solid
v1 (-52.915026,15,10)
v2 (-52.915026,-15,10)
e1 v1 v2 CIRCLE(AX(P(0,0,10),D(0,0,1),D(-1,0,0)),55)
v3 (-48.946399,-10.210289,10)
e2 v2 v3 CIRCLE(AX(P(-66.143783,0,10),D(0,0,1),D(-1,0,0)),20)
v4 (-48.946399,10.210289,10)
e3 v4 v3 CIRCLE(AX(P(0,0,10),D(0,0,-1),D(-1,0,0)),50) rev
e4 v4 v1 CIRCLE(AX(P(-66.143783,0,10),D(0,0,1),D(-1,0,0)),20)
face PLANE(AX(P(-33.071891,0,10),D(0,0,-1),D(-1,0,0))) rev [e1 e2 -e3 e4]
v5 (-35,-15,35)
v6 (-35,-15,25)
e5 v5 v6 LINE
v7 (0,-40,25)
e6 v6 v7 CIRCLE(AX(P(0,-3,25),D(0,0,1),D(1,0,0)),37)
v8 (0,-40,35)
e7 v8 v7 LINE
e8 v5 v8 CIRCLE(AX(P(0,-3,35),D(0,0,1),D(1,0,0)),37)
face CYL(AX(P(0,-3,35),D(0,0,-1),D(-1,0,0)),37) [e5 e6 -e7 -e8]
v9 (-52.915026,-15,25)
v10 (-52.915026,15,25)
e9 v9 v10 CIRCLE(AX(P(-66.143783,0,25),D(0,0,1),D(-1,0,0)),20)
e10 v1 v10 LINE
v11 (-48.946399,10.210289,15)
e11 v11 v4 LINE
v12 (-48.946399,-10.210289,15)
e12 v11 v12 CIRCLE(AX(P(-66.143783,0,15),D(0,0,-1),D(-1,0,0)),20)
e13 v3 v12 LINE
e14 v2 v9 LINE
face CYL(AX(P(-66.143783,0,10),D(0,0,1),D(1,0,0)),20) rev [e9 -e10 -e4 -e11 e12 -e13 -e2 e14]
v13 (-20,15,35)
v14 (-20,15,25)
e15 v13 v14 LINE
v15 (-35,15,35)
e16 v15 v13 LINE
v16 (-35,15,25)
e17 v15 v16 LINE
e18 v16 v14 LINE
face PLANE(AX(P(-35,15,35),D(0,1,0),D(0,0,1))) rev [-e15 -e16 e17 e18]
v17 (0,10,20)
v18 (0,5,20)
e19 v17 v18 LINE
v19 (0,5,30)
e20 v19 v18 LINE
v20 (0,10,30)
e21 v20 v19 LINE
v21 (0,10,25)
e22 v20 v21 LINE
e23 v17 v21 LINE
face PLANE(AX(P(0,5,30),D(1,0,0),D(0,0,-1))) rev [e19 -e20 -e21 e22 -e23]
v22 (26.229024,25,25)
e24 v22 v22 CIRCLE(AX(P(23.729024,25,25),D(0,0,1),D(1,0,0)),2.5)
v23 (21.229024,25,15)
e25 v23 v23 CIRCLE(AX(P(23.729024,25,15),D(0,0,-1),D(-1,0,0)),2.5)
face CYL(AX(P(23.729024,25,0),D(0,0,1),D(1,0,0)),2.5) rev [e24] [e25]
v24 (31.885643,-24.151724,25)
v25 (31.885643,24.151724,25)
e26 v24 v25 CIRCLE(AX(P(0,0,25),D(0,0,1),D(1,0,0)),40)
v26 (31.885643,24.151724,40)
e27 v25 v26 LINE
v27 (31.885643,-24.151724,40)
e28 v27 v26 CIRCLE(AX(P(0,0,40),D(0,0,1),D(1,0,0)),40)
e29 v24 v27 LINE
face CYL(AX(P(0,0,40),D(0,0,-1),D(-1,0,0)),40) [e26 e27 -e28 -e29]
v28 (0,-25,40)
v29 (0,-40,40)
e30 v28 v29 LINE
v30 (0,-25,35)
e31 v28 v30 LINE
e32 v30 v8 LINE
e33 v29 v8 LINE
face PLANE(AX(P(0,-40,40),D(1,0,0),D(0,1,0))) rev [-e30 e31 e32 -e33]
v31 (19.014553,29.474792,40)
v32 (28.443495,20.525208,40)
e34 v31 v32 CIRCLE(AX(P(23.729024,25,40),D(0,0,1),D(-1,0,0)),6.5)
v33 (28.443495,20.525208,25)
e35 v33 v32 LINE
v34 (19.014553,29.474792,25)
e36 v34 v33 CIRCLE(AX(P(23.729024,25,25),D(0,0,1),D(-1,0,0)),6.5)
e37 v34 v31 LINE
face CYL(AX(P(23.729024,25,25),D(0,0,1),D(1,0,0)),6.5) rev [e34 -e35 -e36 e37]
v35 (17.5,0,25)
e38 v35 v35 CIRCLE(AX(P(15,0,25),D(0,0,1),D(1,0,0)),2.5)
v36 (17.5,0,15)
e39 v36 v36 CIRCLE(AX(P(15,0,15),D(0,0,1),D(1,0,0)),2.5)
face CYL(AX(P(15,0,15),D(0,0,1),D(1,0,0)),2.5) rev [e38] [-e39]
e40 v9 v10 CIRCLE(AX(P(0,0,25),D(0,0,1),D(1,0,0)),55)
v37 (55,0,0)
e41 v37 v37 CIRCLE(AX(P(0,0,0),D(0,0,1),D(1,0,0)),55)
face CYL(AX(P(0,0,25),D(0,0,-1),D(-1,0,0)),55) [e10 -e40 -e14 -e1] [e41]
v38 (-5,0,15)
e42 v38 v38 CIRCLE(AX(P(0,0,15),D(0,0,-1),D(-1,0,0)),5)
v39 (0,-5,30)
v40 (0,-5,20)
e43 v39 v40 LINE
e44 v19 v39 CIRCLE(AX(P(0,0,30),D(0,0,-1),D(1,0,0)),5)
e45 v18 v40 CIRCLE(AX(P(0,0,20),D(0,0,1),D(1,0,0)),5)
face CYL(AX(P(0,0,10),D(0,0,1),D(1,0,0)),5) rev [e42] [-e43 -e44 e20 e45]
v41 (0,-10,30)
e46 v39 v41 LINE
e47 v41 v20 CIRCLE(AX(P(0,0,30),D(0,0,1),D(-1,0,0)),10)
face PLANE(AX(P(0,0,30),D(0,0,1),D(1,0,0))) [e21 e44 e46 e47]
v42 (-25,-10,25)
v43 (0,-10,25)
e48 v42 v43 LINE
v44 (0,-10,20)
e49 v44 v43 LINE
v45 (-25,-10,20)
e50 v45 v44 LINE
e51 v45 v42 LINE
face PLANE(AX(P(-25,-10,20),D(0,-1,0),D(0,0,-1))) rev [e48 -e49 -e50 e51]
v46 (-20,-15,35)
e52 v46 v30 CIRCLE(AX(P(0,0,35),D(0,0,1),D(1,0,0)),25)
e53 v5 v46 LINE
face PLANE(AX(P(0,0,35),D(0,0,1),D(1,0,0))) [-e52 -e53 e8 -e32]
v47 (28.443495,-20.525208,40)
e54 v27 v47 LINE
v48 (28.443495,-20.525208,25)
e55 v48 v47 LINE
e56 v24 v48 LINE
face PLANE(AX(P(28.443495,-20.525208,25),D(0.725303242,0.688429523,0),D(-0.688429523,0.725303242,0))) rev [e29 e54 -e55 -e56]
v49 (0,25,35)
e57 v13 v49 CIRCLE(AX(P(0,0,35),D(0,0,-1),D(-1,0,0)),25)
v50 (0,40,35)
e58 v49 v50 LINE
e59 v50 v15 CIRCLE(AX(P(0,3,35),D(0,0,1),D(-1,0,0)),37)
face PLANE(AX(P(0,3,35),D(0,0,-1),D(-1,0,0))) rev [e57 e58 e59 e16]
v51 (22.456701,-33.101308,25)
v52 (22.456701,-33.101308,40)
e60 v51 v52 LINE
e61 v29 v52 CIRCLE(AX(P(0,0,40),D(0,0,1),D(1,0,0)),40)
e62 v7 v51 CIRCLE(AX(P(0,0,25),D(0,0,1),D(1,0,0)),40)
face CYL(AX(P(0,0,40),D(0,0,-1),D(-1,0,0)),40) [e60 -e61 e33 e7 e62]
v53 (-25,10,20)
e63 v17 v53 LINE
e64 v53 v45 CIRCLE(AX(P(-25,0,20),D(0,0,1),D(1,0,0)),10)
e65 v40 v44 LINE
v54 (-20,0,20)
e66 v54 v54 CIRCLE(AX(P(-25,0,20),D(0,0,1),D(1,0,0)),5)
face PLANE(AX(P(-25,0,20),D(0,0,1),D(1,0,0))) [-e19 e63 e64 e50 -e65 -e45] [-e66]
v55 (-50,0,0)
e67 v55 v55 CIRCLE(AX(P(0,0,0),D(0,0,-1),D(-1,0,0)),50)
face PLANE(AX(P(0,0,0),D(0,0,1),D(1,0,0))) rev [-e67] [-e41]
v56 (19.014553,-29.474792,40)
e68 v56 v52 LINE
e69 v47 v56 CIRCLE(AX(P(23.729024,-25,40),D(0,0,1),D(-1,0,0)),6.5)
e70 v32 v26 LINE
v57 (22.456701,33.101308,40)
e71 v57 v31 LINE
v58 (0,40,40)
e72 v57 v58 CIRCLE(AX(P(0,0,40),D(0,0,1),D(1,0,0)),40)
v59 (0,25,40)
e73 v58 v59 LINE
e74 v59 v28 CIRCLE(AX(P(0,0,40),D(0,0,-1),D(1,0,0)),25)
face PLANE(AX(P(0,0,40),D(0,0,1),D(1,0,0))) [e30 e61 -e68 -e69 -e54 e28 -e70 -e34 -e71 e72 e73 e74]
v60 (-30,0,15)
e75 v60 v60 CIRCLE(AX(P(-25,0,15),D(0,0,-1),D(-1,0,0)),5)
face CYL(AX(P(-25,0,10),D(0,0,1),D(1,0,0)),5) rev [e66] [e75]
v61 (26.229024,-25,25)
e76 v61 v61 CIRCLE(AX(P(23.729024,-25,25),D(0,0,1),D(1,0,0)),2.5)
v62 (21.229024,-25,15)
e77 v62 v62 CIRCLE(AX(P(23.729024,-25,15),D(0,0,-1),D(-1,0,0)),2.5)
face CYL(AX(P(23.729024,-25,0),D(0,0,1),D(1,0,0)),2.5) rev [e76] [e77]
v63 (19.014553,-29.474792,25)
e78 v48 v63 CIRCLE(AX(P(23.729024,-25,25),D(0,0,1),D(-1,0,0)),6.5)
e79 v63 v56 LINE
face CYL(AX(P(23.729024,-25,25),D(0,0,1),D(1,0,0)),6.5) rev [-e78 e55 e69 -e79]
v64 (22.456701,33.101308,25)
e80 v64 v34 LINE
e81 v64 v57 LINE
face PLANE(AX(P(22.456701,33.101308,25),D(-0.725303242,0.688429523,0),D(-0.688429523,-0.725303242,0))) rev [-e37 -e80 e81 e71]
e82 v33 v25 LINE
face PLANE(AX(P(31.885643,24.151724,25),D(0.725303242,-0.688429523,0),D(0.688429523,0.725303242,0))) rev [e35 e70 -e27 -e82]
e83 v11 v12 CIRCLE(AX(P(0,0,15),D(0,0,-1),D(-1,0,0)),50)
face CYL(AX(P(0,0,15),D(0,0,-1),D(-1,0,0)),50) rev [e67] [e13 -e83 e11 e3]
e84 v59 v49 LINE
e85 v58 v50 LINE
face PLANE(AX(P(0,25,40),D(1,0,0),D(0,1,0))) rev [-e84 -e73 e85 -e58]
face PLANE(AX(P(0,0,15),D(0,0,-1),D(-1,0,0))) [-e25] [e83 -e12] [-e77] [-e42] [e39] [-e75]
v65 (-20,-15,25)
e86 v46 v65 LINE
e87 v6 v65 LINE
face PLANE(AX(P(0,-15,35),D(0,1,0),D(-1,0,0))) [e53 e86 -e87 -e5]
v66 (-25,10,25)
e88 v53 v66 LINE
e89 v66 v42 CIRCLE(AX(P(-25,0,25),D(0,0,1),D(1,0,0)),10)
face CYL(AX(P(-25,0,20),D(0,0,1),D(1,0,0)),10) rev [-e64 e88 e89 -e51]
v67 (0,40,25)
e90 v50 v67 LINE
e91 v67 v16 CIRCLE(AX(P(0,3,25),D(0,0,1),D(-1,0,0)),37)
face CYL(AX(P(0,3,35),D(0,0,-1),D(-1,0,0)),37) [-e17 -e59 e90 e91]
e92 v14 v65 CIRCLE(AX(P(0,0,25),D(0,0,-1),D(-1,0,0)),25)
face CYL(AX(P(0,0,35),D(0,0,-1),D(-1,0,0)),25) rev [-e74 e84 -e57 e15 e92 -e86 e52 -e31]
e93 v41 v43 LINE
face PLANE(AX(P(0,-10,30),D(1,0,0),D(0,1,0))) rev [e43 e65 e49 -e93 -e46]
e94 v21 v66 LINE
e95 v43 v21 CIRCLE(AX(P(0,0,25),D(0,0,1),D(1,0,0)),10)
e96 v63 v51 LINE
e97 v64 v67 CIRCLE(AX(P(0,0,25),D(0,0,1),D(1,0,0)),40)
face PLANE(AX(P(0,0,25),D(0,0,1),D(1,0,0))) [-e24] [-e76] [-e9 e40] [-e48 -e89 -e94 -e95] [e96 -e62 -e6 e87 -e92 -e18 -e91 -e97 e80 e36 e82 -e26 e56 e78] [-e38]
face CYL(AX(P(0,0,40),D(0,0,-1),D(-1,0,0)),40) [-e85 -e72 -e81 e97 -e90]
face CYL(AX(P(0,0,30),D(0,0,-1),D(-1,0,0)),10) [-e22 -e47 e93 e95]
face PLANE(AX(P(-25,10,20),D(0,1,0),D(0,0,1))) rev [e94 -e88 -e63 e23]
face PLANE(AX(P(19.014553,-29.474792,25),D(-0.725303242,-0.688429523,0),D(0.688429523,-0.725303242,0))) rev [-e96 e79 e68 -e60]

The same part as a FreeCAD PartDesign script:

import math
import FreeCAD as App
import Part
import Sketcher

doc = App.newDocument("Part")
body = doc.addObject("PartDesign::Body", "Body")

sketch1 = body.newObject("Sketcher::SketchObject", "Sketch")
sketch1.AttachmentSupport = (doc.getObject("XY_Plane"), [""])
sketch1.MapMode = "FlatFace"
sketch1.addGeometry(Part.Circle(App.Vector(0, 0, 0), App.Vector(0, 0, 1), 55), False)
sketch1.addConstraint(Sketcher.Constraint("Coincident", 0, 3, -1, 1))
sketch1.addConstraint(Sketcher.Constraint("Diameter", 0, 110.0))
pad1 = body.newObject("PartDesign::Pad", "Pad")
pad1.Profile = sketch1
pad1.Length = 25

sketch2 = body.newObject("Sketcher::SketchObject", "Sketch001")
sketch2.AttachmentSupport = (doc.getObject("XY_Plane"), [""])
sketch2.MapMode = "FlatFace"
sketch2.addGeometry(Part.Circle(App.Vector(0, 0, 0), App.Vector(0, 0, 1), 50), False)
sketch2.addConstraint(Sketcher.Constraint("Coincident", 0, 3, -1, 1))
sketch2.addConstraint(Sketcher.Constraint("Diameter", 0, 100.0))
pocket1 = body.newObject("PartDesign::Pocket", "Pocket")
pocket1.Profile = sketch2
pocket1.Length = 15
pocket1.Reversed = True

sketch3 = body.newObject("Sketcher::SketchObject", "Sketch002")
sketch3.AttachmentSupport = (doc.getObject("XY_Plane"), [""])
sketch3.MapMode = "FlatFace"
sketch3.AttachmentOffset = App.Placement(App.Vector(0, 0, 10), App.Rotation())
sketch3.addGeometry(Part.ArcOfCircle(Part.Circle(App.Vector(-66.143783, 0, 0), App.Vector(0, 0, 1), 20), math.radians(-48.590378), math.radians(48.590378)), False)
sketch3.addGeometry(Part.ArcOfCircle(Part.Circle(App.Vector(0, 0, 0), App.Vector(0, 0, 1), 55), math.radians(164.17338), math.radians(195.82662)), False)
sketch3.addConstraint(Sketcher.Constraint("Coincident", 0, 1, 1, 2))
sketch3.addConstraint(Sketcher.Constraint("Coincident", 1, 1, 0, 2))
sketch3.addConstraint(Sketcher.Constraint("Coincident", 1, 3, -1, 1))
sketch3.addConstraint(Sketcher.Constraint("PointOnObject", 0, 3, -1))
sketch3.addConstraint(Sketcher.Constraint("Radius", 0, 20.0))
sketch3.addConstraint(Sketcher.Constraint("Radius", 1, 55.0))
sketch3.addConstraint(Sketcher.Constraint("DistanceY", 0, 1, -1, 1, 15.0))
pocket2 = body.newObject("PartDesign::Pocket", "Pocket001")
pocket2.Profile = sketch3
pocket2.Length = 15
pocket2.Reversed = True

sketch4 = body.newObject("Sketcher::SketchObject", "Sketch003")
sketch4.AttachmentSupport = (doc.getObject("XY_Plane"), [""])
sketch4.MapMode = "FlatFace"
sketch4.AttachmentOffset = App.Placement(App.Vector(0, 0, 25), App.Rotation())
sketch4.addGeometry(Part.LineSegment(App.Vector(-35, 15, 0), App.Vector(-20, 15, 0)), False)
sketch4.addGeometry(Part.ArcOfCircle(Part.Circle(App.Vector(0, 0, 0), App.Vector(0, 0, 1), 25), math.radians(90), math.radians(143.130102)), False)
sketch4.addGeometry(Part.LineSegment(App.Vector(0, 25, 0), App.Vector(0, 40, 0)), False)
sketch4.addGeometry(Part.ArcOfCircle(Part.Circle(App.Vector(0, 3, 0), App.Vector(0, 0, 1), 37), math.radians(90), math.radians(161.075356)), False)
sketch4.addConstraint(Sketcher.Constraint("Coincident", 0, 2, 1, 2))
sketch4.addConstraint(Sketcher.Constraint("Coincident", 1, 1, 2, 1))
sketch4.addConstraint(Sketcher.Constraint("Coincident", 2, 2, 3, 1))
sketch4.addConstraint(Sketcher.Constraint("Coincident", 3, 2, 0, 1))
sketch4.addConstraint(Sketcher.Constraint("Horizontal", 0))
sketch4.addConstraint(Sketcher.Constraint("Vertical", 2))
sketch4.addConstraint(Sketcher.Constraint("Coincident", 1, 3, -1, 1))
sketch4.addConstraint(Sketcher.Constraint("PointOnObject", 3, 3, -2))
sketch4.addConstraint(Sketcher.Constraint("PointOnObject", 1, 1, -2))
sketch4.addConstraint(Sketcher.Constraint("Equal", 0, 2))
sketch4.addConstraint(Sketcher.Constraint("Radius", 1, 25.0))
sketch4.addConstraint(Sketcher.Constraint("Radius", 3, 37.0))
sketch4.addConstraint(Sketcher.Constraint("DistanceX", 0, 1, 0, 2, 15.0))
pad2 = body.newObject("PartDesign::Pad", "Pad001")
pad2.Profile = sketch4
pad2.Length = 10

sketch5 = body.newObject("Sketcher::SketchObject", "Sketch004")
sketch5.AttachmentSupport = (doc.getObject("XY_Plane"), [""])
sketch5.MapMode = "FlatFace"
sketch5.AttachmentOffset = App.Placement(App.Vector(0, 0, 25), App.Rotation())
sketch5.addGeometry(Part.LineSegment(App.Vector(-20, -15, 0), App.Vector(-35, -15, 0)), False)
sketch5.addGeometry(Part.ArcOfCircle(Part.Circle(App.Vector(0, -3, 0), App.Vector(0, 0, 1), 37), math.radians(-161.075356), math.radians(-90)), False)
sketch5.addGeometry(Part.LineSegment(App.Vector(0, -40, 0), App.Vector(0, -25, 0)), False)
sketch5.addGeometry(Part.ArcOfCircle(Part.Circle(App.Vector(0, 0, 0), App.Vector(0, 0, 1), 25), math.radians(-143.130102), math.radians(-90)), False)
sketch5.addConstraint(Sketcher.Constraint("Coincident", 0, 2, 1, 1))
sketch5.addConstraint(Sketcher.Constraint("Coincident", 1, 2, 2, 1))
sketch5.addConstraint(Sketcher.Constraint("Coincident", 2, 2, 3, 2))
sketch5.addConstraint(Sketcher.Constraint("Coincident", 3, 1, 0, 1))
sketch5.addConstraint(Sketcher.Constraint("Horizontal", 0))
sketch5.addConstraint(Sketcher.Constraint("Vertical", 2))
sketch5.addConstraint(Sketcher.Constraint("Coincident", 3, 3, -1, 1))
sketch5.addConstraint(Sketcher.Constraint("PointOnObject", 1, 3, -2))
sketch5.addConstraint(Sketcher.Constraint("PointOnObject", 1, 2, -2))
sketch5.addConstraint(Sketcher.Constraint("Equal", 0, 2))
sketch5.addConstraint(Sketcher.Constraint("Radius", 1, 37.0))
sketch5.addConstraint(Sketcher.Constraint("Radius", 3, 25.0))
sketch5.addConstraint(Sketcher.Constraint("DistanceX", 0, 2, 0, 1, 15.0))
pad3 = body.newObject("PartDesign::Pad", "Pad002")
pad3.Profile = sketch5
pad3.Length = 10

sketch6 = body.newObject("Sketcher::SketchObject", "Sketch005")
sketch6.AttachmentSupport = (doc.getObject("XY_Plane"), [""])
sketch6.MapMode = "FlatFace"
sketch6.AttachmentOffset = App.Placement(App.Vector(0, 0, 25), App.Rotation())
sketch6.addGeometry(Part.LineSegment(App.Vector(0, -25, 0), App.Vector(0, -40, 0)), False)
sketch6.addGeometry(Part.ArcOfCircle(Part.Circle(App.Vector(0, 0, 0), App.Vector(0, 0, 1), 40), math.radians(-90), math.radians(90)), False)
sketch6.addGeometry(Part.LineSegment(App.Vector(0, 40, 0), App.Vector(0, 25, 0)), False)
sketch6.addGeometry(Part.ArcOfCircle(Part.Circle(App.Vector(0, 0, 0), App.Vector(0, 0, 1), 25), math.radians(-90), math.radians(90)), False)
sketch6.addConstraint(Sketcher.Constraint("Coincident", 0, 2, 1, 1))
sketch6.addConstraint(Sketcher.Constraint("Coincident", 1, 2, 2, 1))
sketch6.addConstraint(Sketcher.Constraint("Coincident", 2, 2, 3, 2))
sketch6.addConstraint(Sketcher.Constraint("Coincident", 3, 1, 0, 1))
sketch6.addConstraint(Sketcher.Constraint("Vertical", 0))
sketch6.addConstraint(Sketcher.Constraint("Vertical", 2))
sketch6.addConstraint(Sketcher.Constraint("Coincident", 1, 3, -1, 1))
sketch6.addConstraint(Sketcher.Constraint("Coincident", 3, 3, -1, 1))
sketch6.addConstraint(Sketcher.Constraint("PointOnObject", 0, 2, -2))
sketch6.addConstraint(Sketcher.Constraint("PointOnObject", 1, 2, -2))
sketch6.addConstraint(Sketcher.Constraint("Radius", 1, 40.0))
sketch6.addConstraint(Sketcher.Constraint("Radius", 3, 25.0))
pad4 = body.newObject("PartDesign::Pad", "Pad003")
pad4.Profile = sketch6
pad4.Length = 15

sketch7 = body.newObject("Sketcher::SketchObject", "Sketch006")
sketch7.AttachmentSupport = (doc.getObject("XY_Plane"), [""])
sketch7.MapMode = "FlatFace"
sketch7.AttachmentOffset = App.Placement(App.Vector(0, 0, 25), App.Rotation())
sketch7.addGeometry(Part.LineSegment(App.Vector(19.014553, -29.474792, 0), App.Vector(22.456701, -33.101308, 0)), False)
sketch7.addGeometry(Part.ArcOfCircle(Part.Circle(App.Vector(0, 0, 0), App.Vector(0, 0, 1), 40), math.radians(-55.846115), math.radians(-37.142045)), False)
sketch7.addGeometry(Part.LineSegment(App.Vector(31.885643, -24.151724, 0), App.Vector(28.443495, -20.525208, 0)), False)
sketch7.addGeometry(Part.ArcOfCircle(Part.Circle(App.Vector(23.729024, -25, 0), App.Vector(0, 0, 1), 6.5), math.radians(43.50592), math.radians(223.50592)), False)
sketch7.addGeometry(Part.LineSegment(App.Vector(22.456701, 33.101308, 0), App.Vector(19.014553, 29.474792, 0)), False)
sketch7.addGeometry(Part.ArcOfCircle(Part.Circle(App.Vector(23.729024, 25, 0), App.Vector(0, 0, 1), 6.5), math.radians(136.49408), math.radians(316.49408)), False)
sketch7.addGeometry(Part.LineSegment(App.Vector(28.443495, 20.525208, 0), App.Vector(31.885643, 24.151724, 0)), False)
sketch7.addGeometry(Part.ArcOfCircle(Part.Circle(App.Vector(0, 0, 0), App.Vector(0, 0, 1), 40), math.radians(37.142045), math.radians(55.846115)), False)
sketch7.addConstraint(Sketcher.Constraint("Coincident", 0, 2, 1, 1))
sketch7.addConstraint(Sketcher.Constraint("Coincident", 1, 2, 2, 1))
sketch7.addConstraint(Sketcher.Constraint("Tangent", 2, 2, 3, 1))
sketch7.addConstraint(Sketcher.Constraint("Tangent", 3, 2, 0, 1))
sketch7.addConstraint(Sketcher.Constraint("Tangent", 4, 2, 5, 1))
sketch7.addConstraint(Sketcher.Constraint("Tangent", 5, 2, 6, 1))
sketch7.addConstraint(Sketcher.Constraint("Coincident", 6, 2, 7, 1))
sketch7.addConstraint(Sketcher.Constraint("Coincident", 7, 2, 4, 1))
sketch7.addConstraint(Sketcher.Constraint("Coincident", 1, 3, -1, 1))
sketch7.addConstraint(Sketcher.Constraint("Coincident", 7, 3, -1, 1))
sketch7.addConstraint(Sketcher.Constraint("Equal", 3, 5))
sketch7.addConstraint(Sketcher.Constraint("Equal", 1, 7))
sketch7.addConstraint(Sketcher.Constraint("Symmetric", 3, 3, 5, 3, -1))
sketch7.addConstraint(Sketcher.Constraint("Parallel", 0, 2))
sketch7.addConstraint(Sketcher.Constraint("Parallel", 4, 6))
sketch7.addConstraint(Sketcher.Constraint("Vertical", 3, 2, 4, 2))
sketch7.addConstraint(Sketcher.Constraint("Equal", 0, 2))
sketch7.addConstraint(Sketcher.Constraint("Radius", 1, 40.0))
sketch7.addConstraint(Sketcher.Constraint("Radius", 3, 6.5))
sketch7.addConstraint(Sketcher.Constraint("Distance", 0, 5.0))
sketch7.addConstraint(Sketcher.Constraint("DistanceY", 3, 3, -1, 1, 25.0))
pocket3 = body.newObject("PartDesign::Pocket", "Pocket002")
pocket3.Profile = sketch7
pocket3.Length = 15
pocket3.Reversed = True

sketch8 = body.newObject("Sketcher::SketchObject", "Sketch007")
sketch8.AttachmentSupport = (doc.getObject("XY_Plane"), [""])
sketch8.MapMode = "FlatFace"
sketch8.AttachmentOffset = App.Placement(App.Vector(0, 0, 25), App.Rotation())
sketch8.addGeometry(Part.Circle(App.Vector(23.729024, -25, 0), App.Vector(0, 0, 1), 2.5), False)
sketch8.addGeometry(Part.Circle(App.Vector(23.729024, 25, 0), App.Vector(0, 0, 1), 2.5), False)
sketch8.addConstraint(Sketcher.Constraint("Equal", 0, 1))
sketch8.addConstraint(Sketcher.Constraint("Symmetric", 0, 3, 1, 3, -1))
sketch8.addConstraint(Sketcher.Constraint("Diameter", 0, 5.0))
sketch8.addConstraint(Sketcher.Constraint("DistanceY", 0, 3, -1, 1, 25.0))
sketch8.addConstraint(Sketcher.Constraint("DistanceX", -1, 1, 0, 3, 23.729024))
pocket4 = body.newObject("PartDesign::Pocket", "Pocket003")
pocket4.Profile = sketch8
pocket4.Length = 25

sketch9 = body.newObject("Sketcher::SketchObject", "Sketch008")
sketch9.AttachmentSupport = (doc.getObject("XY_Plane"), [""])
sketch9.MapMode = "FlatFace"
sketch9.AttachmentOffset = App.Placement(App.Vector(0, 0, 25), App.Rotation())
sketch9.addGeometry(Part.Circle(App.Vector(15, 0, 0), App.Vector(0, 0, 1), 2.5), False)
sketch9.addConstraint(Sketcher.Constraint("PointOnObject", 0, 3, -1))
sketch9.addConstraint(Sketcher.Constraint("Diameter", 0, 5.0))
sketch9.addConstraint(Sketcher.Constraint("DistanceX", -1, 1, 0, 3, 15.0))
pocket5 = body.newObject("PartDesign::Pocket", "Pocket004")
pocket5.Profile = sketch9
pocket5.Length = 10

sketch10 = body.newObject("Sketcher::SketchObject", "Sketch009")
sketch10.AttachmentSupport = (doc.getObject("XY_Plane"), [""])
sketch10.MapMode = "FlatFace"
sketch10.AttachmentOffset = App.Placement(App.Vector(0, 0, 25), App.Rotation())
sketch10.addGeometry(Part.LineSegment(App.Vector(0, 10, 0), App.Vector(-25, 10, 0)), False)
sketch10.addGeometry(Part.ArcOfCircle(Part.Circle(App.Vector(-25, 0, 0), App.Vector(0, 0, 1), 10), math.radians(90), math.radians(270)), False)
sketch10.addGeometry(Part.LineSegment(App.Vector(-25, -10, 0), App.Vector(0, -10, 0)), False)
sketch10.addGeometry(Part.ArcOfCircle(Part.Circle(App.Vector(0, 0, 0), App.Vector(0, 0, 1), 10), math.radians(-90), math.radians(90)), False)
sketch10.addConstraint(Sketcher.Constraint("Tangent", 0, 2, 1, 1))
sketch10.addConstraint(Sketcher.Constraint("Tangent", 1, 2, 2, 1))
sketch10.addConstraint(Sketcher.Constraint("Tangent", 2, 2, 3, 1))
sketch10.addConstraint(Sketcher.Constraint("Tangent", 3, 2, 0, 1))
sketch10.addConstraint(Sketcher.Constraint("Horizontal", 0))
sketch10.addConstraint(Sketcher.Constraint("Horizontal", 2))
sketch10.addConstraint(Sketcher.Constraint("Coincident", 3, 3, -1, 1))
sketch10.addConstraint(Sketcher.Constraint("Radius", 1, 10.0))
sketch10.addConstraint(Sketcher.Constraint("DistanceX", 0, 2, 0, 1, 25.0))
pocket6 = body.newObject("PartDesign::Pocket", "Pocket005")
pocket6.Profile = sketch10
pocket6.Length = 5

sketch11 = body.newObject("Sketcher::SketchObject", "Sketch010")
sketch11.AttachmentSupport = (doc.getObject("XY_Plane"), [""])
sketch11.MapMode = "FlatFace"
sketch11.AttachmentOffset = App.Placement(App.Vector(0, 0, 20), App.Rotation())
sketch11.addGeometry(Part.Circle(App.Vector(-25, 0, 0), App.Vector(0, 0, 1), 5), False)
sketch11.addGeometry(Part.Circle(App.Vector(0, 0, 0), App.Vector(0, 0, 1), 5), False)
sketch11.addConstraint(Sketcher.Constraint("Coincident", 1, 3, -1, 1))
sketch11.addConstraint(Sketcher.Constraint("Equal", 0, 1))
sketch11.addConstraint(Sketcher.Constraint("PointOnObject", 0, 3, -1))
sketch11.addConstraint(Sketcher.Constraint("Diameter", 0, 10.0))
sketch11.addConstraint(Sketcher.Constraint("DistanceX", 0, 3, -1, 1, 25.0))
pocket7 = body.newObject("PartDesign::Pocket", "Pocket006")
pocket7.Profile = sketch11
pocket7.Length = 10

sketch12 = body.newObject("Sketcher::SketchObject", "Sketch011")
sketch12.AttachmentSupport = (doc.getObject("XY_Plane"), [""])
sketch12.MapMode = "FlatFace"
sketch12.AttachmentOffset = App.Placement(App.Vector(0, 0, 30), App.Rotation())
sketch12.addGeometry(Part.LineSegment(App.Vector(0, 10, 0), App.Vector(0, 5, 0)), False)
sketch12.addGeometry(Part.ArcOfCircle(Part.Circle(App.Vector(0, 0, 0), App.Vector(0, 0, 1), 5), math.radians(-90), math.radians(90)), False)
sketch12.addGeometry(Part.LineSegment(App.Vector(0, -5, 0), App.Vector(0, -10, 0)), False)
sketch12.addGeometry(Part.ArcOfCircle(Part.Circle(App.Vector(0, 0, 0), App.Vector(0, 0, 1), 10), math.radians(-90), math.radians(90)), False)
sketch12.addConstraint(Sketcher.Constraint("Coincident", 0, 2, 1, 2))
sketch12.addConstraint(Sketcher.Constraint("Coincident", 1, 1, 2, 1))
sketch12.addConstraint(Sketcher.Constraint("Coincident", 2, 2, 3, 1))
sketch12.addConstraint(Sketcher.Constraint("Coincident", 3, 2, 0, 1))
sketch12.addConstraint(Sketcher.Constraint("Vertical", 0))
sketch12.addConstraint(Sketcher.Constraint("Vertical", 2))
sketch12.addConstraint(Sketcher.Constraint("Coincident", 1, 3, -1, 1))
sketch12.addConstraint(Sketcher.Constraint("Coincident", 3, 3, -1, 1))
sketch12.addConstraint(Sketcher.Constraint("PointOnObject", 0, 2, -2))
sketch12.addConstraint(Sketcher.Constraint("PointOnObject", 1, 1, -2))
sketch12.addConstraint(Sketcher.Constraint("Radius", 1, 5.0))
sketch12.addConstraint(Sketcher.Constraint("Radius", 3, 10.0))
pad5 = body.newObject("PartDesign::Pad", "Pad004")
pad5.Profile = sketch12
pad5.Length = 10
pad5.Reversed = True

doc.recompute()
